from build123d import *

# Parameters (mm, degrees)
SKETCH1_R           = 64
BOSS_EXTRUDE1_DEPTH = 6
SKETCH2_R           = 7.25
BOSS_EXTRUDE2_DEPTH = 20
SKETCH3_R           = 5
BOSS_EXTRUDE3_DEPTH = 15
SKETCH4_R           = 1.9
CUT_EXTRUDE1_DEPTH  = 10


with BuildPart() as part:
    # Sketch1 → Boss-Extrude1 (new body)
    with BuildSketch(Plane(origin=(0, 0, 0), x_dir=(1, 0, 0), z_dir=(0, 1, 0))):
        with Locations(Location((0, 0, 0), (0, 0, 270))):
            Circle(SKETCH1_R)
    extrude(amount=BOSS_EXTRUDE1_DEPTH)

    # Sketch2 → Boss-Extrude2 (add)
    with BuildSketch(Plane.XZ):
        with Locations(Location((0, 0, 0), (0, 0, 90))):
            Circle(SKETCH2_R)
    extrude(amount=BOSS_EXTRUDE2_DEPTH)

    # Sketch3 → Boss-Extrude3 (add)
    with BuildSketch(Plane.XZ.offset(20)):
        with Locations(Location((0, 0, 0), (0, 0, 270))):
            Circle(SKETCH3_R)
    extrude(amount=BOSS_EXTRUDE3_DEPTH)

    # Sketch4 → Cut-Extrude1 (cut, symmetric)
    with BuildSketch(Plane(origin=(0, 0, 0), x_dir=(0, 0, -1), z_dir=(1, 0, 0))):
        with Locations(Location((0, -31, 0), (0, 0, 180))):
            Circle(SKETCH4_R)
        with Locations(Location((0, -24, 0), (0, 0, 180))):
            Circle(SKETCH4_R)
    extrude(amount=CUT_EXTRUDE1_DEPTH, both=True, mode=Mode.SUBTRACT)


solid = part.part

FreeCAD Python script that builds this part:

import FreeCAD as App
import Part
import Sketcher

V = App.Vector
Q = App.Units.Quantity

doc = App.newDocument("Part")
params = doc.addObject("Spreadsheet::Sheet", "Params")
for row, (alias, value) in enumerate([
    ("sketch1_diameter", "128 mm"),
    ("pad1_length", "6 mm"),
    ("sketch2_diameter", "14.5 mm"),
    ("pad2_length", "20 mm"),
    ("sketch3_diameter", "10 mm"),
    ("pad3_length", "15 mm"),
    ("sketch4_diameter", "3.8 mm"),
    ("pocket1_length", "20 mm"),
], start=1):
    params.set(f"A{row}", alias)
    params.set(f"B{row}", "=" + value)
    params.setAlias(f"B{row}", alias)

body = doc.addObject("PartDesign::Body", "Body")

# Sketch on XZ plane
sketch1 = body.newObject("Sketcher::SketchObject", "Sketch")
sketch1.AttachmentSupport = (doc.getObject("XZ_Plane"), [""])
sketch1.MapMode = "FlatFace"
sketch1.addGeometry(Part.Circle(V(0, 0, 0), V(0, 0, 1), 64), False)
sketch1.addConstraint(Sketcher.Constraint("Coincident", 0, 3, -1, 1))
sketch1.addConstraint(Sketcher.Constraint("Diameter", 0, Q("128 mm")))
sketch1.setExpression("Constraints[1]", "Params.sketch1_diameter")
pad1 = body.newObject("PartDesign::Pad", "Pad")
pad1.Profile = sketch1
pad1.setExpression("Length", "Params.pad1_length")
pad1.Reversed = True

# Sketch on XZ plane
sketch2 = body.newObject("Sketcher::SketchObject", "Sketch001")
sketch2.AttachmentSupport = (doc.getObject("XZ_Plane"), [""])
sketch2.MapMode = "FlatFace"
sketch2.addGeometry(Part.Circle(V(0, 0, 0), V(0, 0, 1), 7), False)
sketch2.addConstraint(Sketcher.Constraint("Coincident", 0, 3, -1, 1))
sketch2.addConstraint(Sketcher.Constraint("Diameter", 0, Q("14.5 mm")))
sketch2.setExpression("Constraints[1]", "Params.sketch2_diameter")
pad2 = body.newObject("PartDesign::Pad", "Pad001")
pad2.Profile = sketch2
pad2.setExpression("Length", "Params.pad2_length")

# Sketch on XZ plane
sketch3 = body.newObject("Sketcher::SketchObject", "Sketch002")
sketch3.AttachmentSupport = (doc.getObject("XZ_Plane"), [""])
sketch3.MapMode = "FlatFace"
sketch3.AttachmentOffset = App.Placement(V(0, 0, 20), App.Rotation())
sketch3.addGeometry(Part.Circle(V(0, 0, 0), V(0, 0, 1), 5), False)
sketch3.addConstraint(Sketcher.Constraint("Coincident", 0, 3, -1, 1))
sketch3.addConstraint(Sketcher.Constraint("Diameter", 0, Q("10 mm")))
sketch3.setExpression("Constraints[1]", "Params.sketch3_diameter")
pad3 = body.newObject("PartDesign::Pad", "Pad002")
pad3.Profile = sketch3
pad3.setExpression("Length", "Params.pad3_length")

# Sketch on YZ plane
sketch4 = body.newObject("Sketcher::SketchObject", "Sketch003")
sketch4.AttachmentSupport = (doc.getObject("YZ_Plane"), [""])
sketch4.MapMode = "FlatFace"
sketch4.addGeometry(Part.Circle(V(-31, 0, 0), V(0, 0, 1), 1.9), False)
sketch4.addGeometry(Part.Circle(V(-24, 0, 0), V(0, 0, 1), 1.9), False)
sketch4.addConstraint(Sketcher.Constraint("Equal", 0, 1))
sketch4.addConstraint(Sketcher.Constraint("PointOnObject", 0, 3, -1))
sketch4.addConstraint(Sketcher.Constraint("PointOnObject", 1, 3, -1))
sketch4.addConstraint(Sketcher.Constraint("Diameter", 0, Q("3.8 mm")))
sketch4.addConstraint(Sketcher.Constraint("DistanceX", 0, 3, -1, 1, Q("31 mm")))
sketch4.addConstraint(Sketcher.Constraint("DistanceX", 1, 3, -1, 1, Q("24 mm")))
sketch4.setExpression("Constraints[3]", "Params.sketch4_diameter")
pocket1 = body.newObject("PartDesign::Pocket", "Pocket")
pocket1.Profile = sketch4
pocket1.setExpression("Length", "Params.pocket1_length")
pocket1.Midplane = True

doc.recompute()
